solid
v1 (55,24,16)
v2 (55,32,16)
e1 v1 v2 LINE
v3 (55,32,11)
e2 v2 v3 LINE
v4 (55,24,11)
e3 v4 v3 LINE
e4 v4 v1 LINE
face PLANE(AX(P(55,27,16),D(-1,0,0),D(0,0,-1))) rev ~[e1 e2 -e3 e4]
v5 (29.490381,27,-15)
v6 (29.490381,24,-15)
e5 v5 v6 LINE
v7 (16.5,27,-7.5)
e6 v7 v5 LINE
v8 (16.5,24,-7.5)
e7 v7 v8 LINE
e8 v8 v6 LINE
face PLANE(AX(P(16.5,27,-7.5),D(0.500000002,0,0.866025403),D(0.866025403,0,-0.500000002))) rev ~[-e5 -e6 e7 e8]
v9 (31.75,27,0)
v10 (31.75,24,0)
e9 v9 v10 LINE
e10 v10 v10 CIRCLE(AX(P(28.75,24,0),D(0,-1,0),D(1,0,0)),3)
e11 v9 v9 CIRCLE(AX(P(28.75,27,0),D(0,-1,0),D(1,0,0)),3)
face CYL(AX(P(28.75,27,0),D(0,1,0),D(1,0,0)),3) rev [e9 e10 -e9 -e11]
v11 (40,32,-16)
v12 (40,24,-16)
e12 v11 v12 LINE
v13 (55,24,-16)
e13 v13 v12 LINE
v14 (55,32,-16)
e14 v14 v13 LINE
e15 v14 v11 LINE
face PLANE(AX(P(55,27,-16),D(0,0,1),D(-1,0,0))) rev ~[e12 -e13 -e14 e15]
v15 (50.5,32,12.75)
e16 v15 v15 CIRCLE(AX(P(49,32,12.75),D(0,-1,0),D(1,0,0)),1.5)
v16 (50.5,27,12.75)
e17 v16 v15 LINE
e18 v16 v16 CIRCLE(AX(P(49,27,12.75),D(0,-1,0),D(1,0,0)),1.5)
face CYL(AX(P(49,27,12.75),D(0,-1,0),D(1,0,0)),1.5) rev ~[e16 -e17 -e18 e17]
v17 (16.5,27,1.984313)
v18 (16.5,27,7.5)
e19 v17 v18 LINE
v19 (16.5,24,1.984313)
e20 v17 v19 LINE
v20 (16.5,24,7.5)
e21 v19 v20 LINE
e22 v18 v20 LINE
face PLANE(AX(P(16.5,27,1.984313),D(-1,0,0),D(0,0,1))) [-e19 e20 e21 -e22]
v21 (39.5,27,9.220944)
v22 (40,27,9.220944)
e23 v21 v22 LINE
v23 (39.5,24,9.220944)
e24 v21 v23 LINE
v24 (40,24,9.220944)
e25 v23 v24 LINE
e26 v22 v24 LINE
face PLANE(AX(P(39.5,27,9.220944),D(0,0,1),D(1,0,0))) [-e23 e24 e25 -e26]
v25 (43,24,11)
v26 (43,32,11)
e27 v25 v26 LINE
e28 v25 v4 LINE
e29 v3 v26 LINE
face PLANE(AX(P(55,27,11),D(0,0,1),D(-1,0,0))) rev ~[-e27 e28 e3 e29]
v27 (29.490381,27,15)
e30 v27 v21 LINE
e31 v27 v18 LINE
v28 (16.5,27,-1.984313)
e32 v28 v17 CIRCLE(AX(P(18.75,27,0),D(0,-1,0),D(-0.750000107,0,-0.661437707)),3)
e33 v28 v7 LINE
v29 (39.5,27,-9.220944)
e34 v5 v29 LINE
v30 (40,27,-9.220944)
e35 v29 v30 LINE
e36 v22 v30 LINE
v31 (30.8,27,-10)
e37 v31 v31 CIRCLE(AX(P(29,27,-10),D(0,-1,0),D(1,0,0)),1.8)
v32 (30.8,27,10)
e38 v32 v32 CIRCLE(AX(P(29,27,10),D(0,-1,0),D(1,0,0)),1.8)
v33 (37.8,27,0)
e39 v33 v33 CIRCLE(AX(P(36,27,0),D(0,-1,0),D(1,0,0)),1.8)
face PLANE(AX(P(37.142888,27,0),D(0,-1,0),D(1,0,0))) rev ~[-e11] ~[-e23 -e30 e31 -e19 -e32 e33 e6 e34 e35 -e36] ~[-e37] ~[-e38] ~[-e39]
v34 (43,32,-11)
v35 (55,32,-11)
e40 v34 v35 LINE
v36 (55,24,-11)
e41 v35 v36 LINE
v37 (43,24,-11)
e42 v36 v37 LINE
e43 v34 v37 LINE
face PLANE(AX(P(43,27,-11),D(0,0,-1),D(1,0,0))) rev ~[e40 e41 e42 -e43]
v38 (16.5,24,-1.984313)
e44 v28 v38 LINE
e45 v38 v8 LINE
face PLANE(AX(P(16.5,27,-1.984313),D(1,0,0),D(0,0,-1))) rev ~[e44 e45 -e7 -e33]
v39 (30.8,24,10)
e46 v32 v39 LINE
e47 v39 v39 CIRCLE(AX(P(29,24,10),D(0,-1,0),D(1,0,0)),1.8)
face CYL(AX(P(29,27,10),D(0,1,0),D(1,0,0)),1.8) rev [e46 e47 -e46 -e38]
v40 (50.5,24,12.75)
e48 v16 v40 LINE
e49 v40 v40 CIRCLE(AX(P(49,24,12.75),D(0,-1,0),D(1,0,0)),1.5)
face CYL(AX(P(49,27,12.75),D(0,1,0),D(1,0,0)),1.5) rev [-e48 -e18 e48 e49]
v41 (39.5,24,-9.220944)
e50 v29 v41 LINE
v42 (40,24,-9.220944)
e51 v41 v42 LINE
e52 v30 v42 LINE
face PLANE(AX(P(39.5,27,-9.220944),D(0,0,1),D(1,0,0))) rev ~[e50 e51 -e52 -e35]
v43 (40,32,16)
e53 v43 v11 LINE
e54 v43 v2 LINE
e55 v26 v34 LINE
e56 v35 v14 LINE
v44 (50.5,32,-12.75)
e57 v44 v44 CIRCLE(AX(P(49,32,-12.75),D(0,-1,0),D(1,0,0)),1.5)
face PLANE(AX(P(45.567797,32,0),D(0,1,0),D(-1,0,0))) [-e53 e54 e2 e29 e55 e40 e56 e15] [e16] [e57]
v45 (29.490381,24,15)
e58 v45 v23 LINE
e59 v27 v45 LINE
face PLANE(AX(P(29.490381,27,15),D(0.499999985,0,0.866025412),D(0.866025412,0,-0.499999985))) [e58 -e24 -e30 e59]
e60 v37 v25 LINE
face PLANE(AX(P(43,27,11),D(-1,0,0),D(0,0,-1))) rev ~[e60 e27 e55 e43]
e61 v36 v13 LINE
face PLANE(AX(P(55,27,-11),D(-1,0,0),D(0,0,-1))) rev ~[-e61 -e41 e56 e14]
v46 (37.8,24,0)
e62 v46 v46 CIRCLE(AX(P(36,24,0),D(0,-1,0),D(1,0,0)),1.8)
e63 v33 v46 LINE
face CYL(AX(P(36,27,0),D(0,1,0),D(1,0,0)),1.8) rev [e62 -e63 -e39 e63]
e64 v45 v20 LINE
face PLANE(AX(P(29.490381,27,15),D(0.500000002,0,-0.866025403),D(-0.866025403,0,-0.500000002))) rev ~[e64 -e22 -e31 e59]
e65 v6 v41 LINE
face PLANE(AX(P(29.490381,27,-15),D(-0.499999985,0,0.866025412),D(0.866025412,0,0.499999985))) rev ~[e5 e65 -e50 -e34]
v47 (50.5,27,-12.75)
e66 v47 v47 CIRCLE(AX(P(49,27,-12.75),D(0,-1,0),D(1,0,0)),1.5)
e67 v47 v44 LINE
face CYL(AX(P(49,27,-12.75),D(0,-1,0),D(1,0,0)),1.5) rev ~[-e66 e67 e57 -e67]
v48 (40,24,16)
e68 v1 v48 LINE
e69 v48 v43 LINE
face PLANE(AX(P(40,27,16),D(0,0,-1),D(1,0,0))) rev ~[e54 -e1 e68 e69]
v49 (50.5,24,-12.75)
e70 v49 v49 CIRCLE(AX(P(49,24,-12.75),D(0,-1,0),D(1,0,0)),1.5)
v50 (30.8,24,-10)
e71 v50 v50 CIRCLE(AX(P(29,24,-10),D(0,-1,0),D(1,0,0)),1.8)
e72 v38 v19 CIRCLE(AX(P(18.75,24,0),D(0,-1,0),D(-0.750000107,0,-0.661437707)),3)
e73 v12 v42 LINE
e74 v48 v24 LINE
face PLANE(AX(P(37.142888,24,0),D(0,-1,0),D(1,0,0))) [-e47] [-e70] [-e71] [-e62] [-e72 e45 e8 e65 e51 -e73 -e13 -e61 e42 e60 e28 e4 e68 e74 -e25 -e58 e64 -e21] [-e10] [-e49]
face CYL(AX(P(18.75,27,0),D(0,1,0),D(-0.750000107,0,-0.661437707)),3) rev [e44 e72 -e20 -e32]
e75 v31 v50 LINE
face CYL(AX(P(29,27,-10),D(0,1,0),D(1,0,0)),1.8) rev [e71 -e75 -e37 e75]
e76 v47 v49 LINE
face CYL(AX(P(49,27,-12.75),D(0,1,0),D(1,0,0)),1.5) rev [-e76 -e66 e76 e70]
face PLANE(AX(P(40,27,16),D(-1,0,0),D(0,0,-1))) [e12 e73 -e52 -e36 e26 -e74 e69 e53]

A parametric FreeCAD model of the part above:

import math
import FreeCAD as App
import Part
import Sketcher
Q = App.Units.Quantity

doc = App.newDocument("Part")
body = doc.addObject("PartDesign::Body", "Body")

# Sketch on XZ plane
sketch1 = doc.addObject("Sketcher::SketchObject", "Sketch")
body.addObject(sketch1)
sketch1.AttachmentSupport = (doc.XZ_Plane, [""])
sketch1.MapMode = "FlatFace"
sketch1.AttachmentOffset = App.Placement(App.Vector(0, 0, -27), App.Rotation())
sketch1.addGeometry(Part.LineSegment(App.Vector(40, 16, 0), App.Vector(40, -16, 0)), False)
sketch1.addGeometry(Part.LineSegment(App.Vector(40, -16, 0), App.Vector(55, -16, 0)), False)
sketch1.addGeometry(Part.LineSegment(App.Vector(55, -16, 0), App.Vector(55, -11, 0)), False)
sketch1.addGeometry(Part.LineSegment(App.Vector(55, -11, 0), App.Vector(43, -11, 0)), False)
sketch1.addGeometry(Part.LineSegment(App.Vector(43, -11, 0), App.Vector(43, 11, 0)), False)
sketch1.addGeometry(Part.LineSegment(App.Vector(43, 11, 0), App.Vector(55, 11, 0)), False)
sketch1.addGeometry(Part.LineSegment(App.Vector(55, 11, 0), App.Vector(55, 16, 0)), False)
sketch1.addGeometry(Part.LineSegment(App.Vector(55, 16, 0), App.Vector(40, 16, 0)), False)
sketch1.addGeometry(Part.Circle(App.Vector(49, -12.75, 0), App.Vector(0, 0, 1), 1.5), False)
sketch1.addGeometry(Part.Circle(App.Vector(49, 12.75, 0), App.Vector(0, 0, 1), 1.5), False)
sketch1.addConstraint(Sketcher.Constraint("Coincident", 0, 2, 1, 1))
sketch1.addConstraint(Sketcher.Constraint("Coincident", 1, 2, 2, 1))
sketch1.addConstraint(Sketcher.Constraint("Coincident", 2, 2, 3, 1))
sketch1.addConstraint(Sketcher.Constraint("Coincident", 3, 2, 4, 1))
sketch1.addConstraint(Sketcher.Constraint("Coincident", 4, 2, 5, 1))
sketch1.addConstraint(Sketcher.Constraint("Coincident", 5, 2, 6, 1))
sketch1.addConstraint(Sketcher.Constraint("Coincident", 6, 2, 7, 1))
sketch1.addConstraint(Sketcher.Constraint("Coincident", 7, 2, 0, 1))
sketch1.addConstraint(Sketcher.Constraint("Vertical", 0))
sketch1.addConstraint(Sketcher.Constraint("Horizontal", 1))
sketch1.addConstraint(Sketcher.Constraint("Vertical", 2))
sketch1.addConstraint(Sketcher.Constraint("Horizontal", 3))
sketch1.addConstraint(Sketcher.Constraint("Vertical", 4))
sketch1.addConstraint(Sketcher.Constraint("Horizontal", 5))
sketch1.addConstraint(Sketcher.Constraint("Vertical", 6))
sketch1.addConstraint(Sketcher.Constraint("Horizontal", 7))
sketch1.addConstraint(Sketcher.Constraint("Equal", 8, 9))
sketch1.addConstraint(Sketcher.Constraint("Symmetric", 8, 3, 9, 3, -1))
sketch1.addConstraint(Sketcher.Constraint("Symmetric", 2, 2, 5, 2, -1))
sketch1.addConstraint(Sketcher.Constraint("Equal", 2, 6))
sketch1.addConstraint(Sketcher.Constraint("Diameter", 8, 3.0))
sketch1.addConstraint(Sketcher.Constraint("DistanceX", 1, 1, 1, 2, 15.0))
sketch1.addConstraint(Sketcher.Constraint("DistanceX", 3, 2, 3, 1, 12.0))
sketch1.addConstraint(Sketcher.Constraint("DistanceY", 0, 2, 0, 1, 32.0))
sketch1.addConstraint(Sketcher.Constraint("DistanceY", 2, 1, 2, 2, 5.0))
sketch1.addConstraint(Sketcher.Constraint("DistanceX", -1, 1, 8, 3, 49.0))
sketch1.addConstraint(Sketcher.Constraint("DistanceX", -1, 1, 0, 2, 40.0))
sketch1.addConstraint(Sketcher.Constraint("DistanceY", 8, 3, 9, 3, 25.5))
pad1 = doc.addObject("PartDesign::Pad", "Pad")
body.addObject(pad1)
pad1.Profile = sketch1
pad1.Length = 5
pad1.Reversed = True
body2 = doc.addObject("PartDesign::Body", "Body001")

# Sketch on XZ plane
sketch2 = doc.addObject("Sketcher::SketchObject", "Sketch001")
body2.addObject(sketch2)
sketch2.AttachmentSupport = (doc.getObject("XZ_Plane001"), [""])
sketch2.MapMode = "FlatFace"
sketch2.AttachmentOffset = App.Placement(App.Vector(0, 0, -27), App.Rotation())
sketch2.addGeometry(Part.LineSegment(App.Vector(29.490381, 15, 0), App.Vector(16.5, 7.5, 0)), False)
sketch2.addGeometry(Part.LineSegment(App.Vector(16.5, 7.5, 0), App.Vector(16.5, 1.984313, 0)), False)
sketch2.addGeometry(Part.ArcOfCircle(Part.Circle(App.Vector(18.75, 0, 0), App.Vector(0, 0, 1), 3), math.radians(-138.590387), math.radians(138.590387)), False)
sketch2.addGeometry(Part.LineSegment(App.Vector(16.5, -1.984313, 0), App.Vector(16.5, -7.5, 0)), False)
sketch2.addGeometry(Part.LineSegment(App.Vector(16.5, -7.5, 0), App.Vector(29.490381, -15, 0)), False)
sketch2.addGeometry(Part.LineSegment(App.Vector(29.490381, -15, 0), App.Vector(39.5, -9.220944, 0)), False)
sketch2.addGeometry(Part.LineSegment(App.Vector(39.5, -9.220944, 0), App.Vector(40, -9.220944, 0)), False)
sketch2.addGeometry(Part.LineSegment(App.Vector(40, -9.220944, 0), App.Vector(40, -16, 0)), False)
sketch2.addGeometry(Part.LineSegment(App.Vector(40, -16, 0), App.Vector(55, -16, 0)), False)
sketch2.addGeometry(Part.LineSegment(App.Vector(55, -16, 0), App.Vector(55, -11, 0)), False)
sketch2.addGeometry(Part.LineSegment(App.Vector(55, -11, 0), App.Vector(43, -11, 0)), False)
sketch2.addGeometry(Part.LineSegment(App.Vector(43, -11, 0), App.Vector(43, 11, 0)), False)
sketch2.addGeometry(Part.LineSegment(App.Vector(43, 11, 0), App.Vector(55, 11, 0)), False)
sketch2.addGeometry(Part.LineSegment(App.Vector(55, 11, 0), App.Vector(55, 16, 0)), False)
sketch2.addGeometry(Part.LineSegment(App.Vector(55, 16, 0), App.Vector(40, 16, 0)), False)
sketch2.addGeometry(Part.LineSegment(App.Vector(40, 16, 0), App.Vector(40, 9.220944, 0)), False)
sketch2.addGeometry(Part.LineSegment(App.Vector(40, 9.220944, 0), App.Vector(39.5, 9.220944, 0)), False)
sketch2.addGeometry(Part.LineSegment(App.Vector(39.5, 9.220944, 0), App.Vector(29.490381, 15, 0)), False)
sketch2.addGeometry(Part.Circle(App.Vector(29, -10, 0), App.Vector(0, 0, 1), 1.8), False)
sketch2.addGeometry(Part.Circle(App.Vector(49, -12.75, 0), App.Vector(0, 0, 1), 1.5), False)
sketch2.addGeometry(Part.Circle(App.Vector(28.75, 0, 0), App.Vector(0, 0, 1), 3), False)
sketch2.addGeometry(Part.Circle(App.Vector(36, 0, 0), App.Vector(0, 0, 1), 1.8), False)
sketch2.addGeometry(Part.Circle(App.Vector(29, 10, 0), App.Vector(0, 0, 1), 1.8), False)
sketch2.addGeometry(Part.Circle(App.Vector(49, 12.75, 0), App.Vector(0, 0, 1), 1.5), False)
sketch2.addConstraint(Sketcher.Constraint("Coincident", 0, 2, 1, 1))
sketch2.addConstraint(Sketcher.Constraint("Coincident", 1, 2, 2, 2))
sketch2.addConstraint(Sketcher.Constraint("Coincident", 2, 1, 3, 1))
sketch2.addConstraint(Sketcher.Constraint("Coincident", 3, 2, 4, 1))
sketch2.addConstraint(Sketcher.Constraint("Coincident", 4, 2, 5, 1))
sketch2.addConstraint(Sketcher.Constraint("Coincident", 5, 2, 6, 1))
sketch2.addConstraint(Sketcher.Constraint("Coincident", 6, 2, 7, 1))
sketch2.addConstraint(Sketcher.Constraint("Coincident", 7, 2, 8, 1))
sketch2.addConstraint(Sketcher.Constraint("Coincident", 8, 2, 9, 1))
sketch2.addConstraint(Sketcher.Constraint("Coincident", 9, 2, 10, 1))
sketch2.addConstraint(Sketcher.Constraint("Coincident", 10, 2, 11, 1))
sketch2.addConstraint(Sketcher.Constraint("Coincident", 11, 2, 12, 1))
sketch2.addConstraint(Sketcher.Constraint("Coincident", 12, 2, 13, 1))
sketch2.addConstraint(Sketcher.Constraint("Coincident", 13, 2, 14, 1))
sketch2.addConstraint(Sketcher.Constraint("Coincident", 14, 2, 15, 1))
sketch2.addConstraint(Sketcher.Constraint("Coincident", 15, 2, 16, 1))
sketch2.addConstraint(Sketcher.Constraint("Coincident", 16, 2, 17, 1))
sketch2.addConstraint(Sketcher.Constraint("Coincident", 17, 2, 0, 1))
sketch2.addConstraint(Sketcher.Constraint("Vertical", 1))
sketch2.addConstraint(Sketcher.Constraint("Vertical", 3))
sketch2.addConstraint(Sketcher.Constraint("Horizontal", 6))
sketch2.addConstraint(Sketcher.Constraint("Vertical", 7))
sketch2.addConstraint(Sketcher.Constraint("Horizontal", 8))
sketch2.addConstraint(Sketcher.Constraint("Vertical", 9))
sketch2.addConstraint(Sketcher.Constraint("Horizontal", 10))
sketch2.addConstraint(Sketcher.Constraint("Vertical", 11))
sketch2.addConstraint(Sketcher.Constraint("Horizontal", 12))
sketch2.addConstraint(Sketcher.Constraint("Vertical", 13))
sketch2.addConstraint(Sketcher.Constraint("Horizontal", 14))
sketch2.addConstraint(Sketcher.Constraint("Vertical", 15))
sketch2.addConstraint(Sketcher.Constraint("Horizontal", 16))
sketch2.addConstraint(Sketcher.Constraint("Equal", 2, 20))
sketch2.addConstraint(Sketcher.Constraint("Equal", 18, 21))
sketch2.addConstraint(Sketcher.Constraint("Equal", 21, 22))
sketch2.addConstraint(Sketcher.Constraint("Equal", 19, 23))
sketch2.addConstraint(Sketcher.Constraint("Symmetric", 18, 3, 22, 3, -1))
sketch2.addConstraint(Sketcher.Constraint("Symmetric", 19, 3, 23, 3, -1))
sketch2.addConstraint(Sketcher.Constraint("Symmetric", 1, 2, 2, 1, -1))
sketch2.addConstraint(Sketcher.Constraint("Symmetric", 9, 2, 12, 2, -1))
sketch2.addConstraint(Sketcher.Constraint("Symmetric", 7, 2, 14, 2, -1))
sketch2.addConstraint(Sketcher.Constraint("Symmetric", 5, 2, 16, 2, -1))
sketch2.addConstraint(Sketcher.Constraint("Symmetric", 4, 2, 17, 2, -1))
sketch2.addConstraint(Sketcher.Constraint("PointOnObject", 20, 3, -1))
sketch2.addConstraint(Sketcher.Constraint("PointOnObject", 21, 3, -1))
sketch2.addConstraint(Sketcher.Constraint("Parallel", 0, 5))
sketch2.addConstraint(Sketcher.Constraint("Parallel", 4, 17))
sketch2.addConstraint(Sketcher.Constraint("Diameter", 19, 3.0))
sketch2.addConstraint(Sketcher.Constraint("Diameter", 20, 6.0))
sketch2.addConstraint(Sketcher.Constraint("Diameter", 18, 3.6))
sketch2.addConstraint(Sketcher.Constraint("DistanceX", 8, 1, 8, 2, 15.0))
sketch2.addConstraint(Sketcher.Constraint("DistanceX", 10, 2, 10, 1, 12.0))
sketch2.addConstraint(Sketcher.Constraint("DistanceY", 9, 1, 9, 2, 5.0))
sketch2.addConstraint(Sketcher.Constraint("DistanceY", 11, 1, 11, 2, 22.0))
sketch2.addConstraint(Sketcher.Constraint("Angle", 0, Q("-150 deg")))
sketch2.addConstraint(Sketcher.Constraint("Distance", 0, 15.0))
sketch2.addConstraint(Sketcher.Constraint("DistanceX", 6, 1, 6, 2, 0.5))
sketch2.addConstraint(Sketcher.Constraint("DistanceX", -1, 1, 18, 3, 29.0))
sketch2.addConstraint(Sketcher.Constraint("DistanceY", 18, 3, -1, 1, 10.0))
sketch2.addConstraint(Sketcher.Constraint("DistanceX", -1, 1, 19, 3, 49.0))
sketch2.addConstraint(Sketcher.Constraint("DistanceX", -1, 1, 21, 3, 36.0))
sketch2.addConstraint(Sketcher.Constraint("DistanceY", 4, 2, -1, 1, 15.0))
sketch2.addConstraint(Sketcher.Constraint("DistanceX", -1, 1, 6, 2, 40.0))
sketch2.addConstraint(Sketcher.Constraint("DistanceX", 2, 3, 20, 3, 10.0))
sketch2.addConstraint(Sketcher.Constraint("DistanceX", -1, 1, 0, 2, 16.5))
sketch2.addConstraint(Sketcher.Constraint("DistanceY", 19, 3, 23, 3, 25.5))
sketch2.addConstraint(Sketcher.Constraint("DistanceX", -1, 1, 2, 3, 18.75))
pad2 = doc.addObject("PartDesign::Pad", "Pad001")
body2.addObject(pad2)
pad2.Profile = sketch2
pad2.Length = 3
doc.recompute()

boolean = doc.addObject("PartDesign::Boolean", "Boolean")
body2.addObject(boolean)
boolean.Type = "Fuse"
boolean.addObjects([body])

doc.recompute()
